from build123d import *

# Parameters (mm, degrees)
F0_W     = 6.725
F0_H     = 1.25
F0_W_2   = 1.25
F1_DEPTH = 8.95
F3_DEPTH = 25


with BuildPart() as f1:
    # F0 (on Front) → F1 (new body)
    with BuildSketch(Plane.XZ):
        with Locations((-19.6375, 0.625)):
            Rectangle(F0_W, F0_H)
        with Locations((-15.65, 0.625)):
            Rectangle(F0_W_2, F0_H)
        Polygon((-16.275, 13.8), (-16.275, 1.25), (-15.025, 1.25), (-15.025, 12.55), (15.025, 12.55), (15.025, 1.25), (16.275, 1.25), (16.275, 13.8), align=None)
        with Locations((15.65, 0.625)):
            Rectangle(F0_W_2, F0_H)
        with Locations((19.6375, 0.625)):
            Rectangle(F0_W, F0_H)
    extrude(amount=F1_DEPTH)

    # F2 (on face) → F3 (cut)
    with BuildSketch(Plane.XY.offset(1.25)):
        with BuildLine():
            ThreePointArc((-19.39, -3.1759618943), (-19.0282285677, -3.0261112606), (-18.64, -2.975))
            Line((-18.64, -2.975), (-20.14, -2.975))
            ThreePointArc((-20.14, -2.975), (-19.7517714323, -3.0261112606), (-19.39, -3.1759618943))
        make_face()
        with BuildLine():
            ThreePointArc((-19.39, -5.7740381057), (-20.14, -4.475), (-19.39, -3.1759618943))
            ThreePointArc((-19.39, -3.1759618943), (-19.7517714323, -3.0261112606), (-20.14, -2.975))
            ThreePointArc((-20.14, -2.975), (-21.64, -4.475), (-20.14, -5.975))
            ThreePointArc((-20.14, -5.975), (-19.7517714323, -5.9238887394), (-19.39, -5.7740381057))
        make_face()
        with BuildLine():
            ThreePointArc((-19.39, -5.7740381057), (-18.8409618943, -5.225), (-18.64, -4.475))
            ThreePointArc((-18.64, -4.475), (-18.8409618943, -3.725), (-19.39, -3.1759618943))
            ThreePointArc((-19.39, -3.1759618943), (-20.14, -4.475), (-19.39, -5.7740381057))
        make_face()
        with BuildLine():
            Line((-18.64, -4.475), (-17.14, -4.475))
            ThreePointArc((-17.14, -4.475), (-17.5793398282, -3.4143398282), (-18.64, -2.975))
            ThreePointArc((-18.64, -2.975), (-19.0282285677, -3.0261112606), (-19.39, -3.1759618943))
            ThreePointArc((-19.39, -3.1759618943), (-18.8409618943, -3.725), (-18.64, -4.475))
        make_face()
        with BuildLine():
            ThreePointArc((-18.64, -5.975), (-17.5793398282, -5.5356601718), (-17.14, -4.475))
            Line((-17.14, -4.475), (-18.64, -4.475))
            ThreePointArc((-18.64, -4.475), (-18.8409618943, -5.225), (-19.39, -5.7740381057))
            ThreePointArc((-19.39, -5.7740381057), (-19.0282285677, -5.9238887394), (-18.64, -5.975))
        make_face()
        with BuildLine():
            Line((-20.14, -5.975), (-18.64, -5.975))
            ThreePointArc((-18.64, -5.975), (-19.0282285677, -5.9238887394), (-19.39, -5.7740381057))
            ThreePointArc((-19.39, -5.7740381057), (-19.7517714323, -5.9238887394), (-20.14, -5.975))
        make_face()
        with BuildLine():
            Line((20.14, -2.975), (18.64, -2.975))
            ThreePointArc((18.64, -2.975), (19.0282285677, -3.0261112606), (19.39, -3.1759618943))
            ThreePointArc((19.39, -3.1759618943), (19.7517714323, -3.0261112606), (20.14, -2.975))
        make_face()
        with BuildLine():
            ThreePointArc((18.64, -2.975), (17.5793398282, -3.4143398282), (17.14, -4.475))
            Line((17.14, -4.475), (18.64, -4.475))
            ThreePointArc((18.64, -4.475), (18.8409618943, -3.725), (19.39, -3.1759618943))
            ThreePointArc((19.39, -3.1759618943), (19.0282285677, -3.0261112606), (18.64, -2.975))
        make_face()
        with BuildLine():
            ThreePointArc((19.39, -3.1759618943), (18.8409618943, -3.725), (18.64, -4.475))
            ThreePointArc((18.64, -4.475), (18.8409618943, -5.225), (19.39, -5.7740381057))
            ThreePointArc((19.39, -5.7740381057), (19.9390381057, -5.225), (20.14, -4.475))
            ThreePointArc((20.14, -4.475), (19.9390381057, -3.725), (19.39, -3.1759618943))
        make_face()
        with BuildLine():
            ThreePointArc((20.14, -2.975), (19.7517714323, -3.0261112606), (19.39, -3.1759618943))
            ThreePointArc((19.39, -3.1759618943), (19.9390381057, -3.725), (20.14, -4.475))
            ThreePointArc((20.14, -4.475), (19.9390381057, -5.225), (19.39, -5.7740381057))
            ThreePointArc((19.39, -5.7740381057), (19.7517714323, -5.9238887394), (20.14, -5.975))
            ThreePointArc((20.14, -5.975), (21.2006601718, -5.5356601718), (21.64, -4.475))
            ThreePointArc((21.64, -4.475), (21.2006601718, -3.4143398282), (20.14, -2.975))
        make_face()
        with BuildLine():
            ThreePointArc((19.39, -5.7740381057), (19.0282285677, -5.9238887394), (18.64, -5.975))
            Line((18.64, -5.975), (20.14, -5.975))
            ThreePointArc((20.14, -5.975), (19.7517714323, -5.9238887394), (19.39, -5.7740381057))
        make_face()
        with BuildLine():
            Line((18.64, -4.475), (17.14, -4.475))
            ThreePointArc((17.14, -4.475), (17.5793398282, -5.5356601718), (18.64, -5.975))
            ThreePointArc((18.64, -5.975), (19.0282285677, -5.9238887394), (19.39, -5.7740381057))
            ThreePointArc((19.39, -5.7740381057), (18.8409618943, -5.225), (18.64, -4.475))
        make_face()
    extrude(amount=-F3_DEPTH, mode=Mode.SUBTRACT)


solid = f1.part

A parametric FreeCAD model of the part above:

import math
import FreeCAD as App
import Part
import Sketcher


def add_polygon(sketch, points):
    """Adds a closed chain of lines whose ends are joined by coincident constraints."""
    first, n = sketch.GeometryCount, len(points)
    for a, b in zip(points, points[1:] + points[:1]):
        sketch.addGeometry(Part.LineSegment(App.Vector(*a, 0), App.Vector(*b, 0)), False)
    for i in range(n):
        sketch.addConstraint(Sketcher.Constraint("Coincident", first + i, 2, first + (i + 1) % n, 1))

doc = App.newDocument("Part")
body = doc.addObject("PartDesign::Body", "Body")

# Sketch on XZ plane
sketch1 = body.newObject("Sketcher::SketchObject", "Sketch")
sketch1.AttachmentSupport = (doc.getObject("XZ_Plane"), [""])
sketch1.MapMode = "FlatFace"
add_polygon(sketch1, [(-23, 1.2), (-23, 0), (-15, 0), (-15, 12.6), (15, 12.6), (15, 0), (23, 0), (23, 1.2), (16.3, 1.2), (16.3, 13.8), (-16.3, 13.8), (-16.3, 1.2)])  # lines 0-11
sketch1.addConstraint([
    Sketcher.Constraint("Vertical", 0),
    Sketcher.Constraint("Horizontal", 1),
    Sketcher.Constraint("Vertical", 2),
    Sketcher.Constraint("Horizontal", 3),
    Sketcher.Constraint("Vertical", 4),
    Sketcher.Constraint("Horizontal", 5),
    Sketcher.Constraint("Vertical", 6),
    Sketcher.Constraint("Horizontal", 7),
    Sketcher.Constraint("Vertical", 8),
    Sketcher.Constraint("Horizontal", 9),
    Sketcher.Constraint("Vertical", 10),
    Sketcher.Constraint("Horizontal", 11),
    Sketcher.Constraint("Symmetric", 1, 2, 4, 2, -1, 1),
    Sketcher.Constraint("Symmetric", 0, 2, 5, 2, -2),
    Sketcher.Constraint("Symmetric", 7, 2, 10, 2, -2),
    Sketcher.Constraint("Equal", 4, 8),
    Sketcher.Constraint("DistanceX", 0, 2, -1, 1, 23.0),
    Sketcher.Constraint("DistanceX", 3, 1, 3, 2, 30.05),
    Sketcher.Constraint("DistanceX", 9, 2, 9, 1, 32.55),
    Sketcher.Constraint("DistanceY", 0, 2, 0, 1, 1.25),
    Sketcher.Constraint("DistanceY", 2, 1, 2, 2, 12.55),
])
pad1 = body.newObject("PartDesign::Pad", "Pad")
pad1.Profile = sketch1
pad1.Length = 8.95

# Sketch on XY plane
sketch2 = body.newObject("Sketcher::SketchObject", "Sketch001")
sketch2.AttachmentSupport = (doc.getObject("XY_Plane"), [""])
sketch2.MapMode = "FlatFace"
sketch2.AttachmentOffset = App.Placement(App.Vector(0, 0, 1.25), App.Rotation())
sketch2.addGeometry([
    Part.LineSegment(App.Vector(-18.6, -3, 0), App.Vector(-20.1, -3, 0)),  # 0
    Part.ArcOfCircle(Part.Circle(App.Vector(-20.1, -4.5, 0), App.Vector(0, 0, 1), 1.5), math.radians(90), math.radians(270)),  # 1
    Part.LineSegment(App.Vector(-20.1, -6, 0), App.Vector(-18.6, -6, 0)),  # 2
    Part.ArcOfCircle(Part.Circle(App.Vector(-18.6, -4.5, 0), App.Vector(0, 0, 1), 1.5), math.radians(-90), math.radians(0)),  # 3
    Part.ArcOfCircle(Part.Circle(App.Vector(-18.6, -4.5, 0), App.Vector(0, 0, 1), 1.5), math.radians(0), math.radians(90)),  # 4
    Part.LineSegment(App.Vector(20.1, -3, 0), App.Vector(18.6, -3, 0)),  # 5
    Part.ArcOfCircle(Part.Circle(App.Vector(18.6, -4.5, 0), App.Vector(0, 0, 1), 1.5), math.radians(90), math.radians(180)),  # 6
    Part.ArcOfCircle(Part.Circle(App.Vector(18.6, -4.5, 0), App.Vector(0, 0, 1), 1.5), math.radians(180), math.radians(270)),  # 7
    Part.LineSegment(App.Vector(18.6, -6, 0), App.Vector(20.1, -6, 0)),  # 8
    Part.ArcOfCircle(Part.Circle(App.Vector(20.1, -4.5, 0), App.Vector(0, 0, 1), 1.5), math.radians(-90), math.radians(0)),  # 9
    Part.ArcOfCircle(Part.Circle(App.Vector(20.1, -4.5, 0), App.Vector(0, 0, 1), 1.5), math.radians(0), math.radians(90)),  # 10
], False)
sketch2.addConstraint([
    Sketcher.Constraint("Tangent", 0, 2, 1, 1),
    Sketcher.Constraint("Tangent", 1, 2, 2, 1),
    Sketcher.Constraint("Tangent", 2, 2, 3, 1),
    Sketcher.Constraint("Tangent", 3, 2, 4, 1),
    Sketcher.Constraint("Tangent", 4, 2, 0, 1),
    Sketcher.Constraint("Tangent", 5, 2, 6, 1),
    Sketcher.Constraint("Tangent", 6, 2, 7, 1),
    Sketcher.Constraint("Tangent", 7, 2, 8, 1),
    Sketcher.Constraint("Tangent", 8, 2, 9, 1),
    Sketcher.Constraint("Tangent", 9, 2, 10, 1),
    Sketcher.Constraint("Tangent", 10, 2, 5, 1),
    Sketcher.Constraint("Horizontal", 0),
    Sketcher.Constraint("Horizontal", 2),
    Sketcher.Constraint("Horizontal", 5),
    Sketcher.Constraint("Horizontal", 8),
    Sketcher.Constraint("Equal", 1, 3),
    Sketcher.Constraint("Equal", 4, 6),
    Sketcher.Constraint("Equal", 6, 7),
    Sketcher.Constraint("Equal", 7, 9),
    Sketcher.Constraint("Symmetric", 3, 3, 6, 3, -2),
    Sketcher.Constraint("Horizontal", 10, 3, 3, 2),
    Sketcher.Constraint("Horizontal", 3, 2, 6, 2),
    Sketcher.Constraint("Horizontal", 6, 2, 9, 2),
    Sketcher.Constraint("Equal", 2, 5),
    Sketcher.Constraint("Radius", 1, 1.5),
    Sketcher.Constraint("DistanceX", 0, 2, 0, 1, 1.5),
    Sketcher.Constraint("DistanceX", 1, 3, -1, 1, 20.14),
    Sketcher.Constraint("DistanceY", 1, 3, -1, 1, 4.475),
])
pocket1 = body.newObject("PartDesign::Pocket", "Pocket")
pocket1.Profile = sketch2
pocket1.Length = 25

doc.recompute()
